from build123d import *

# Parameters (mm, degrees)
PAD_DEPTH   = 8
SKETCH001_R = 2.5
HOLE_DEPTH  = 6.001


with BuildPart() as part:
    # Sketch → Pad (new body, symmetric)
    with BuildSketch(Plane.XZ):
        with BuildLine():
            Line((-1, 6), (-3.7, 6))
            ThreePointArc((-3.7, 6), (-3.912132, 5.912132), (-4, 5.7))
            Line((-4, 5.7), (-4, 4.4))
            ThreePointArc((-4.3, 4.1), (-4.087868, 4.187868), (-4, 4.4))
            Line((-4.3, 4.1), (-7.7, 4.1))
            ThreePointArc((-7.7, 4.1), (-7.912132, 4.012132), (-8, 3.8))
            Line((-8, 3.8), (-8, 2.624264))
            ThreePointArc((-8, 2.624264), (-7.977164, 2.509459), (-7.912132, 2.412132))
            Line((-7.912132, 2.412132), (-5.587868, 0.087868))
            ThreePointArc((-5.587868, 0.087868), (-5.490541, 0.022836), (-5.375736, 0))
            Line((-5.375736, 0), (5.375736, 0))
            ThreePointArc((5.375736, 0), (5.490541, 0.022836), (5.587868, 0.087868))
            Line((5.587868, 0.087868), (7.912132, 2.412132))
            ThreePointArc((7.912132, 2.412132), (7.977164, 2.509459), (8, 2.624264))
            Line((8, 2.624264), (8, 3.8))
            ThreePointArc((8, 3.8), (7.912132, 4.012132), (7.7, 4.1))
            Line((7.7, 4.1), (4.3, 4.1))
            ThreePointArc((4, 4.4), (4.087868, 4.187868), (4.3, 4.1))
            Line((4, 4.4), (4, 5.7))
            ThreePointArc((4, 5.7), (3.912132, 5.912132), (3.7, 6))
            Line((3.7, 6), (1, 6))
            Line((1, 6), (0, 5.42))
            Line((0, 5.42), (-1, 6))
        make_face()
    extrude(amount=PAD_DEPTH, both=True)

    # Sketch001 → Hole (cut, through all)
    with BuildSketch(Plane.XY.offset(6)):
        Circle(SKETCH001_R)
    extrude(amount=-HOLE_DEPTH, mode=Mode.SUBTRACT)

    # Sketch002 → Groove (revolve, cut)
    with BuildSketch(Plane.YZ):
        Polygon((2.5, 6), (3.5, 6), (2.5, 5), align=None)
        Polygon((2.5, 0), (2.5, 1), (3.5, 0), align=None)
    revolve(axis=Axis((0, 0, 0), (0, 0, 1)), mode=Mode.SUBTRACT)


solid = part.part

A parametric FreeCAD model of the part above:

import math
import FreeCAD as App
import Part
import Sketcher
Q = App.Units.Quantity


def add_polygon(sketch, points):
    """Adds a closed chain of lines whose ends are joined by coincident constraints."""
    first, n = sketch.GeometryCount, len(points)
    for a, b in zip(points, points[1:] + points[:1]):
        sketch.addGeometry(Part.LineSegment(App.Vector(*a, 0), App.Vector(*b, 0)), False)
    for i in range(n):
        sketch.addConstraint(Sketcher.Constraint("Coincident", first + i, 2, first + (i + 1) % n, 1))

doc = App.newDocument("Part")
body = doc.addObject("PartDesign::Body", "Body")

# Sketch on XZ plane
sketch1 = doc.addObject("Sketcher::SketchObject", "Sketch")
body.addObject(sketch1)
sketch1.AttachmentSupport = (doc.XZ_Plane, [""])
sketch1.MapMode = "FlatFace"
sketch1.addGeometry(Part.LineSegment(App.Vector(-1, 6, 0), App.Vector(-3.7, 6, 0)), False)
sketch1.addGeometry(Part.ArcOfCircle(Part.Circle(App.Vector(-3.7, 5.7, 0), App.Vector(0, 0, 1), 0.3), math.radians(90), math.radians(180)), False)
sketch1.addGeometry(Part.LineSegment(App.Vector(-4, 5.7, 0), App.Vector(-4, 4.4, 0)), False)
sketch1.addGeometry(Part.ArcOfCircle(Part.Circle(App.Vector(-4.3, 4.4, 0), App.Vector(0, 0, 1), 0.3), math.radians(-90), math.radians(0)), False)
sketch1.addGeometry(Part.LineSegment(App.Vector(-4.3, 4.1, 0), App.Vector(-7.7, 4.1, 0)), False)
sketch1.addGeometry(Part.ArcOfCircle(Part.Circle(App.Vector(-7.7, 3.8, 0), App.Vector(0, 0, 1), 0.3), math.radians(90), math.radians(180)), False)
sketch1.addGeometry(Part.LineSegment(App.Vector(-8, 3.8, 0), App.Vector(-8, 2.62, 0)), False)
sketch1.addGeometry(Part.ArcOfCircle(Part.Circle(App.Vector(-7.7, 2.62, 0), App.Vector(0, 0, 1), 0.3), math.radians(180), math.radians(225)), False)
sketch1.addGeometry(Part.LineSegment(App.Vector(-7.91, 2.41, 0), App.Vector(-5.59, 0.09, 0)), False)
sketch1.addGeometry(Part.ArcOfCircle(Part.Circle(App.Vector(-5.38, 0.3, 0), App.Vector(0, 0, 1), 0.3), math.radians(-135), math.radians(-90)), False)
sketch1.addGeometry(Part.LineSegment(App.Vector(-5.38, 0, 0), App.Vector(5.38, 0, 0)), False)
sketch1.addGeometry(Part.ArcOfCircle(Part.Circle(App.Vector(5.38, 0.3, 0), App.Vector(0, 0, 1), 0.3), math.radians(-90), math.radians(-45)), False)
sketch1.addGeometry(Part.LineSegment(App.Vector(5.59, 0.09, 0), App.Vector(7.91, 2.41, 0)), False)
sketch1.addGeometry(Part.ArcOfCircle(Part.Circle(App.Vector(7.7, 2.62, 0), App.Vector(0, 0, 1), 0.3), math.radians(-45), math.radians(0)), False)
sketch1.addGeometry(Part.LineSegment(App.Vector(8, 2.62, 0), App.Vector(8, 3.8, 0)), False)
sketch1.addGeometry(Part.ArcOfCircle(Part.Circle(App.Vector(7.7, 3.8, 0), App.Vector(0, 0, 1), 0.3), math.radians(0), math.radians(90)), False)
sketch1.addGeometry(Part.LineSegment(App.Vector(7.7, 4.1, 0), App.Vector(4.3, 4.1, 0)), False)
sketch1.addGeometry(Part.ArcOfCircle(Part.Circle(App.Vector(4.3, 4.4, 0), App.Vector(0, 0, 1), 0.3), math.radians(-180), math.radians(-90)), False)
sketch1.addGeometry(Part.LineSegment(App.Vector(4, 4.4, 0), App.Vector(4, 5.7, 0)), False)
sketch1.addGeometry(Part.ArcOfCircle(Part.Circle(App.Vector(3.7, 5.7, 0), App.Vector(0, 0, 1), 0.3), math.radians(0), math.radians(90)), False)
sketch1.addGeometry(Part.LineSegment(App.Vector(3.7, 6, 0), App.Vector(1, 6, 0)), False)
sketch1.addGeometry(Part.LineSegment(App.Vector(1, 6, 0), App.Vector(0, 5.42, 0)), False)
sketch1.addGeometry(Part.LineSegment(App.Vector(0, 5.42, 0), App.Vector(-1, 6, 0)), False)
sketch1.addConstraint(Sketcher.Constraint("Tangent", 0, 2, 1, 1))
sketch1.addConstraint(Sketcher.Constraint("Tangent", 1, 2, 2, 1))
sketch1.addConstraint(Sketcher.Constraint("Tangent", 2, 2, 3, 2))
sketch1.addConstraint(Sketcher.Constraint("Tangent", 3, 1, 4, 1))
sketch1.addConstraint(Sketcher.Constraint("Tangent", 4, 2, 5, 1))
sketch1.addConstraint(Sketcher.Constraint("Tangent", 5, 2, 6, 1))
sketch1.addConstraint(Sketcher.Constraint("Coincident", 6, 2, 7, 1))
sketch1.addConstraint(Sketcher.Constraint("Coincident", 7, 2, 8, 1))
sketch1.addConstraint(Sketcher.Constraint("Coincident", 8, 2, 9, 1))
sketch1.addConstraint(Sketcher.Constraint("Coincident", 9, 2, 10, 1))
sketch1.addConstraint(Sketcher.Constraint("Coincident", 10, 2, 11, 1))
sketch1.addConstraint(Sketcher.Constraint("Coincident", 11, 2, 12, 1))
sketch1.addConstraint(Sketcher.Constraint("Coincident", 12, 2, 13, 1))
sketch1.addConstraint(Sketcher.Constraint("Coincident", 13, 2, 14, 1))
sketch1.addConstraint(Sketcher.Constraint("Tangent", 14, 2, 15, 1))
sketch1.addConstraint(Sketcher.Constraint("Tangent", 15, 2, 16, 1))
sketch1.addConstraint(Sketcher.Constraint("Tangent", 16, 2, 17, 2))
sketch1.addConstraint(Sketcher.Constraint("Tangent", 17, 1, 18, 1))
sketch1.addConstraint(Sketcher.Constraint("Tangent", 18, 2, 19, 1))
sketch1.addConstraint(Sketcher.Constraint("Tangent", 19, 2, 20, 1))
sketch1.addConstraint(Sketcher.Constraint("Coincident", 20, 2, 21, 1))
sketch1.addConstraint(Sketcher.Constraint("Coincident", 21, 2, 22, 1))
sketch1.addConstraint(Sketcher.Constraint("Coincident", 22, 2, 0, 1))
sketch1.addConstraint(Sketcher.Constraint("Horizontal", 0))
sketch1.addConstraint(Sketcher.Constraint("Vertical", 2))
sketch1.addConstraint(Sketcher.Constraint("Horizontal", 4))
sketch1.addConstraint(Sketcher.Constraint("Vertical", 6))
sketch1.addConstraint(Sketcher.Constraint("Horizontal", 10))
sketch1.addConstraint(Sketcher.Constraint("Vertical", 14))
sketch1.addConstraint(Sketcher.Constraint("Horizontal", 16))
sketch1.addConstraint(Sketcher.Constraint("Vertical", 18))
sketch1.addConstraint(Sketcher.Constraint("Horizontal", 20))
sketch1.addConstraint(Sketcher.Constraint("Equal", 1, 3))
sketch1.addConstraint(Sketcher.Constraint("Equal", 3, 5))
sketch1.addConstraint(Sketcher.Constraint("Equal", 5, 7))
sketch1.addConstraint(Sketcher.Constraint("Equal", 7, 9))
sketch1.addConstraint(Sketcher.Constraint("Equal", 9, 11))
sketch1.addConstraint(Sketcher.Constraint("Equal", 11, 13))
sketch1.addConstraint(Sketcher.Constraint("Equal", 13, 15))
sketch1.addConstraint(Sketcher.Constraint("Equal", 15, 17))
sketch1.addConstraint(Sketcher.Constraint("Equal", 17, 19))
sketch1.addConstraint(Sketcher.Constraint("Symmetric", 9, 2, 10, 2, -1, 1))
sketch1.addConstraint(Sketcher.Constraint("Symmetric", 7, 3, 13, 3, -2))
sketch1.addConstraint(Sketcher.Constraint("Symmetric", 3, 3, 17, 3, -2))
sketch1.addConstraint(Sketcher.Constraint("Symmetric", 8, 2, 11, 2, -2))
sketch1.addConstraint(Sketcher.Constraint("Symmetric", 20, 2, 22, 2, -2))
sketch1.addConstraint(Sketcher.Constraint("PointOnObject", 21, 2, -2))
sketch1.addConstraint(Sketcher.Constraint("Perpendicular", 8, 12))
sketch1.addConstraint(Sketcher.Constraint("Horizontal", 13, 3, 6, 2))
sketch1.addConstraint(Sketcher.Constraint("Horizontal", 7, 2, 12, 2))
sketch1.addConstraint(Sketcher.Constraint("Horizontal", 6, 2, 13, 2))
sketch1.addConstraint(Sketcher.Constraint("Vertical", 11, 3, 10, 2))
sketch1.addConstraint(Sketcher.Constraint("Radius", 1, Q("0.3 mm")))
sketch1.addConstraint(Sketcher.Constraint("DistanceX", 0, 2, 0, 1, Q("2.7 mm")))
sketch1.addConstraint(Sketcher.Constraint("DistanceX", 4, 2, 4, 1, Q("3.4 mm")))
sketch1.addConstraint(Sketcher.Constraint("DistanceY", 2, 2, 2, 1, Q("1.3 mm")))
sketch1.addConstraint(Sketcher.Constraint("DistanceY", -1, 1, 0, 2, Q("6 mm")))
sketch1.addConstraint(Sketcher.Constraint("DistanceX", 1, 2, -1, 1, Q("4 mm")))
sketch1.addConstraint(Sketcher.Constraint("DistanceY", -1, 1, 21, 2, Q("5.42 mm")))
sketch1.addConstraint(Sketcher.Constraint("DistanceX", 10, 1, 10, 2, Q("10.751472 mm")))
sketch1.addConstraint(Sketcher.Constraint("DistanceY", -1, 1, 7, 2, Q("2.412132 mm")))
sketch1.addConstraint(Sketcher.Constraint("DistanceX", 8, 2, -1, 1, Q("5.587868 mm")))
pad1 = doc.addObject("PartDesign::Pad", "Pad")
body.addObject(pad1)
pad1.Profile = sketch1
pad1.Length = 16
pad1.Midplane = True

# Sketch on XY plane
sketch2 = doc.addObject("Sketcher::SketchObject", "Sketch001")
body.addObject(sketch2)
sketch2.AttachmentSupport = (doc.XY_Plane, [""])
sketch2.MapMode = "FlatFace"
sketch2.AttachmentOffset = App.Placement(App.Vector(0, 0, 6), App.Rotation())
sketch2.addGeometry(Part.Circle(App.Vector(0, 0, 0), App.Vector(0, 0, 1), 2.5), False)
sketch2.addConstraint(Sketcher.Constraint("Coincident", 0, 3, -1, 1))
sketch2.addConstraint(Sketcher.Constraint("Diameter", 0, Q("5 mm")))
pocket1 = doc.addObject("PartDesign::Pocket", "Pocket")
body.addObject(pocket1)
pocket1.Profile = sketch2
pocket1.Type = "ThroughAll"

# Sketch on YZ plane
sketch3 = doc.addObject("Sketcher::SketchObject", "Sketch002")
body.addObject(sketch3)
sketch3.AttachmentSupport = (doc.YZ_Plane, [""])
sketch3.MapMode = "FlatFace"
add_polygon(sketch3, [(3.5, 6), (2.5, 6), (2.5, 5)])  # lines 0-2
add_polygon(sketch3, [(2.5, 1), (2.5, 0), (3.5, 0)])  # lines 3-5
sketch3.addConstraint(Sketcher.Constraint("Horizontal", 0))
sketch3.addConstraint(Sketcher.Constraint("Vertical", 1))
sketch3.addConstraint(Sketcher.Constraint("Vertical", 3))
sketch3.addConstraint(Sketcher.Constraint("Horizontal", 4))
sketch3.addConstraint(Sketcher.Constraint("PointOnObject", 3, 2, -1))
sketch3.addConstraint(Sketcher.Constraint("Perpendicular", 2, 5))
sketch3.addConstraint(Sketcher.Constraint("Vertical", 1, 2, 3, 2))
sketch3.addConstraint(Sketcher.Constraint("Vertical", 2, 2, 4, 2))
sketch3.addConstraint(Sketcher.Constraint("Equal", 4, 1))
sketch3.addConstraint(Sketcher.Constraint("DistanceX", 0, 2, 0, 1, Q("1 mm")))
sketch3.addConstraint(Sketcher.Constraint("DistanceY", -1, 1, 0, 2, Q("6 mm")))
sketch3.addConstraint(Sketcher.Constraint("DistanceX", -1, 1, 0, 2, Q("2.5 mm")))
groove = doc.addObject("PartDesign::Groove", "Groove")
body.addObject(groove)
groove.Profile = sketch3
groove.ReferenceAxis = (sketch3, ["V_Axis"])
groove.Angle = 360

doc.recompute()
